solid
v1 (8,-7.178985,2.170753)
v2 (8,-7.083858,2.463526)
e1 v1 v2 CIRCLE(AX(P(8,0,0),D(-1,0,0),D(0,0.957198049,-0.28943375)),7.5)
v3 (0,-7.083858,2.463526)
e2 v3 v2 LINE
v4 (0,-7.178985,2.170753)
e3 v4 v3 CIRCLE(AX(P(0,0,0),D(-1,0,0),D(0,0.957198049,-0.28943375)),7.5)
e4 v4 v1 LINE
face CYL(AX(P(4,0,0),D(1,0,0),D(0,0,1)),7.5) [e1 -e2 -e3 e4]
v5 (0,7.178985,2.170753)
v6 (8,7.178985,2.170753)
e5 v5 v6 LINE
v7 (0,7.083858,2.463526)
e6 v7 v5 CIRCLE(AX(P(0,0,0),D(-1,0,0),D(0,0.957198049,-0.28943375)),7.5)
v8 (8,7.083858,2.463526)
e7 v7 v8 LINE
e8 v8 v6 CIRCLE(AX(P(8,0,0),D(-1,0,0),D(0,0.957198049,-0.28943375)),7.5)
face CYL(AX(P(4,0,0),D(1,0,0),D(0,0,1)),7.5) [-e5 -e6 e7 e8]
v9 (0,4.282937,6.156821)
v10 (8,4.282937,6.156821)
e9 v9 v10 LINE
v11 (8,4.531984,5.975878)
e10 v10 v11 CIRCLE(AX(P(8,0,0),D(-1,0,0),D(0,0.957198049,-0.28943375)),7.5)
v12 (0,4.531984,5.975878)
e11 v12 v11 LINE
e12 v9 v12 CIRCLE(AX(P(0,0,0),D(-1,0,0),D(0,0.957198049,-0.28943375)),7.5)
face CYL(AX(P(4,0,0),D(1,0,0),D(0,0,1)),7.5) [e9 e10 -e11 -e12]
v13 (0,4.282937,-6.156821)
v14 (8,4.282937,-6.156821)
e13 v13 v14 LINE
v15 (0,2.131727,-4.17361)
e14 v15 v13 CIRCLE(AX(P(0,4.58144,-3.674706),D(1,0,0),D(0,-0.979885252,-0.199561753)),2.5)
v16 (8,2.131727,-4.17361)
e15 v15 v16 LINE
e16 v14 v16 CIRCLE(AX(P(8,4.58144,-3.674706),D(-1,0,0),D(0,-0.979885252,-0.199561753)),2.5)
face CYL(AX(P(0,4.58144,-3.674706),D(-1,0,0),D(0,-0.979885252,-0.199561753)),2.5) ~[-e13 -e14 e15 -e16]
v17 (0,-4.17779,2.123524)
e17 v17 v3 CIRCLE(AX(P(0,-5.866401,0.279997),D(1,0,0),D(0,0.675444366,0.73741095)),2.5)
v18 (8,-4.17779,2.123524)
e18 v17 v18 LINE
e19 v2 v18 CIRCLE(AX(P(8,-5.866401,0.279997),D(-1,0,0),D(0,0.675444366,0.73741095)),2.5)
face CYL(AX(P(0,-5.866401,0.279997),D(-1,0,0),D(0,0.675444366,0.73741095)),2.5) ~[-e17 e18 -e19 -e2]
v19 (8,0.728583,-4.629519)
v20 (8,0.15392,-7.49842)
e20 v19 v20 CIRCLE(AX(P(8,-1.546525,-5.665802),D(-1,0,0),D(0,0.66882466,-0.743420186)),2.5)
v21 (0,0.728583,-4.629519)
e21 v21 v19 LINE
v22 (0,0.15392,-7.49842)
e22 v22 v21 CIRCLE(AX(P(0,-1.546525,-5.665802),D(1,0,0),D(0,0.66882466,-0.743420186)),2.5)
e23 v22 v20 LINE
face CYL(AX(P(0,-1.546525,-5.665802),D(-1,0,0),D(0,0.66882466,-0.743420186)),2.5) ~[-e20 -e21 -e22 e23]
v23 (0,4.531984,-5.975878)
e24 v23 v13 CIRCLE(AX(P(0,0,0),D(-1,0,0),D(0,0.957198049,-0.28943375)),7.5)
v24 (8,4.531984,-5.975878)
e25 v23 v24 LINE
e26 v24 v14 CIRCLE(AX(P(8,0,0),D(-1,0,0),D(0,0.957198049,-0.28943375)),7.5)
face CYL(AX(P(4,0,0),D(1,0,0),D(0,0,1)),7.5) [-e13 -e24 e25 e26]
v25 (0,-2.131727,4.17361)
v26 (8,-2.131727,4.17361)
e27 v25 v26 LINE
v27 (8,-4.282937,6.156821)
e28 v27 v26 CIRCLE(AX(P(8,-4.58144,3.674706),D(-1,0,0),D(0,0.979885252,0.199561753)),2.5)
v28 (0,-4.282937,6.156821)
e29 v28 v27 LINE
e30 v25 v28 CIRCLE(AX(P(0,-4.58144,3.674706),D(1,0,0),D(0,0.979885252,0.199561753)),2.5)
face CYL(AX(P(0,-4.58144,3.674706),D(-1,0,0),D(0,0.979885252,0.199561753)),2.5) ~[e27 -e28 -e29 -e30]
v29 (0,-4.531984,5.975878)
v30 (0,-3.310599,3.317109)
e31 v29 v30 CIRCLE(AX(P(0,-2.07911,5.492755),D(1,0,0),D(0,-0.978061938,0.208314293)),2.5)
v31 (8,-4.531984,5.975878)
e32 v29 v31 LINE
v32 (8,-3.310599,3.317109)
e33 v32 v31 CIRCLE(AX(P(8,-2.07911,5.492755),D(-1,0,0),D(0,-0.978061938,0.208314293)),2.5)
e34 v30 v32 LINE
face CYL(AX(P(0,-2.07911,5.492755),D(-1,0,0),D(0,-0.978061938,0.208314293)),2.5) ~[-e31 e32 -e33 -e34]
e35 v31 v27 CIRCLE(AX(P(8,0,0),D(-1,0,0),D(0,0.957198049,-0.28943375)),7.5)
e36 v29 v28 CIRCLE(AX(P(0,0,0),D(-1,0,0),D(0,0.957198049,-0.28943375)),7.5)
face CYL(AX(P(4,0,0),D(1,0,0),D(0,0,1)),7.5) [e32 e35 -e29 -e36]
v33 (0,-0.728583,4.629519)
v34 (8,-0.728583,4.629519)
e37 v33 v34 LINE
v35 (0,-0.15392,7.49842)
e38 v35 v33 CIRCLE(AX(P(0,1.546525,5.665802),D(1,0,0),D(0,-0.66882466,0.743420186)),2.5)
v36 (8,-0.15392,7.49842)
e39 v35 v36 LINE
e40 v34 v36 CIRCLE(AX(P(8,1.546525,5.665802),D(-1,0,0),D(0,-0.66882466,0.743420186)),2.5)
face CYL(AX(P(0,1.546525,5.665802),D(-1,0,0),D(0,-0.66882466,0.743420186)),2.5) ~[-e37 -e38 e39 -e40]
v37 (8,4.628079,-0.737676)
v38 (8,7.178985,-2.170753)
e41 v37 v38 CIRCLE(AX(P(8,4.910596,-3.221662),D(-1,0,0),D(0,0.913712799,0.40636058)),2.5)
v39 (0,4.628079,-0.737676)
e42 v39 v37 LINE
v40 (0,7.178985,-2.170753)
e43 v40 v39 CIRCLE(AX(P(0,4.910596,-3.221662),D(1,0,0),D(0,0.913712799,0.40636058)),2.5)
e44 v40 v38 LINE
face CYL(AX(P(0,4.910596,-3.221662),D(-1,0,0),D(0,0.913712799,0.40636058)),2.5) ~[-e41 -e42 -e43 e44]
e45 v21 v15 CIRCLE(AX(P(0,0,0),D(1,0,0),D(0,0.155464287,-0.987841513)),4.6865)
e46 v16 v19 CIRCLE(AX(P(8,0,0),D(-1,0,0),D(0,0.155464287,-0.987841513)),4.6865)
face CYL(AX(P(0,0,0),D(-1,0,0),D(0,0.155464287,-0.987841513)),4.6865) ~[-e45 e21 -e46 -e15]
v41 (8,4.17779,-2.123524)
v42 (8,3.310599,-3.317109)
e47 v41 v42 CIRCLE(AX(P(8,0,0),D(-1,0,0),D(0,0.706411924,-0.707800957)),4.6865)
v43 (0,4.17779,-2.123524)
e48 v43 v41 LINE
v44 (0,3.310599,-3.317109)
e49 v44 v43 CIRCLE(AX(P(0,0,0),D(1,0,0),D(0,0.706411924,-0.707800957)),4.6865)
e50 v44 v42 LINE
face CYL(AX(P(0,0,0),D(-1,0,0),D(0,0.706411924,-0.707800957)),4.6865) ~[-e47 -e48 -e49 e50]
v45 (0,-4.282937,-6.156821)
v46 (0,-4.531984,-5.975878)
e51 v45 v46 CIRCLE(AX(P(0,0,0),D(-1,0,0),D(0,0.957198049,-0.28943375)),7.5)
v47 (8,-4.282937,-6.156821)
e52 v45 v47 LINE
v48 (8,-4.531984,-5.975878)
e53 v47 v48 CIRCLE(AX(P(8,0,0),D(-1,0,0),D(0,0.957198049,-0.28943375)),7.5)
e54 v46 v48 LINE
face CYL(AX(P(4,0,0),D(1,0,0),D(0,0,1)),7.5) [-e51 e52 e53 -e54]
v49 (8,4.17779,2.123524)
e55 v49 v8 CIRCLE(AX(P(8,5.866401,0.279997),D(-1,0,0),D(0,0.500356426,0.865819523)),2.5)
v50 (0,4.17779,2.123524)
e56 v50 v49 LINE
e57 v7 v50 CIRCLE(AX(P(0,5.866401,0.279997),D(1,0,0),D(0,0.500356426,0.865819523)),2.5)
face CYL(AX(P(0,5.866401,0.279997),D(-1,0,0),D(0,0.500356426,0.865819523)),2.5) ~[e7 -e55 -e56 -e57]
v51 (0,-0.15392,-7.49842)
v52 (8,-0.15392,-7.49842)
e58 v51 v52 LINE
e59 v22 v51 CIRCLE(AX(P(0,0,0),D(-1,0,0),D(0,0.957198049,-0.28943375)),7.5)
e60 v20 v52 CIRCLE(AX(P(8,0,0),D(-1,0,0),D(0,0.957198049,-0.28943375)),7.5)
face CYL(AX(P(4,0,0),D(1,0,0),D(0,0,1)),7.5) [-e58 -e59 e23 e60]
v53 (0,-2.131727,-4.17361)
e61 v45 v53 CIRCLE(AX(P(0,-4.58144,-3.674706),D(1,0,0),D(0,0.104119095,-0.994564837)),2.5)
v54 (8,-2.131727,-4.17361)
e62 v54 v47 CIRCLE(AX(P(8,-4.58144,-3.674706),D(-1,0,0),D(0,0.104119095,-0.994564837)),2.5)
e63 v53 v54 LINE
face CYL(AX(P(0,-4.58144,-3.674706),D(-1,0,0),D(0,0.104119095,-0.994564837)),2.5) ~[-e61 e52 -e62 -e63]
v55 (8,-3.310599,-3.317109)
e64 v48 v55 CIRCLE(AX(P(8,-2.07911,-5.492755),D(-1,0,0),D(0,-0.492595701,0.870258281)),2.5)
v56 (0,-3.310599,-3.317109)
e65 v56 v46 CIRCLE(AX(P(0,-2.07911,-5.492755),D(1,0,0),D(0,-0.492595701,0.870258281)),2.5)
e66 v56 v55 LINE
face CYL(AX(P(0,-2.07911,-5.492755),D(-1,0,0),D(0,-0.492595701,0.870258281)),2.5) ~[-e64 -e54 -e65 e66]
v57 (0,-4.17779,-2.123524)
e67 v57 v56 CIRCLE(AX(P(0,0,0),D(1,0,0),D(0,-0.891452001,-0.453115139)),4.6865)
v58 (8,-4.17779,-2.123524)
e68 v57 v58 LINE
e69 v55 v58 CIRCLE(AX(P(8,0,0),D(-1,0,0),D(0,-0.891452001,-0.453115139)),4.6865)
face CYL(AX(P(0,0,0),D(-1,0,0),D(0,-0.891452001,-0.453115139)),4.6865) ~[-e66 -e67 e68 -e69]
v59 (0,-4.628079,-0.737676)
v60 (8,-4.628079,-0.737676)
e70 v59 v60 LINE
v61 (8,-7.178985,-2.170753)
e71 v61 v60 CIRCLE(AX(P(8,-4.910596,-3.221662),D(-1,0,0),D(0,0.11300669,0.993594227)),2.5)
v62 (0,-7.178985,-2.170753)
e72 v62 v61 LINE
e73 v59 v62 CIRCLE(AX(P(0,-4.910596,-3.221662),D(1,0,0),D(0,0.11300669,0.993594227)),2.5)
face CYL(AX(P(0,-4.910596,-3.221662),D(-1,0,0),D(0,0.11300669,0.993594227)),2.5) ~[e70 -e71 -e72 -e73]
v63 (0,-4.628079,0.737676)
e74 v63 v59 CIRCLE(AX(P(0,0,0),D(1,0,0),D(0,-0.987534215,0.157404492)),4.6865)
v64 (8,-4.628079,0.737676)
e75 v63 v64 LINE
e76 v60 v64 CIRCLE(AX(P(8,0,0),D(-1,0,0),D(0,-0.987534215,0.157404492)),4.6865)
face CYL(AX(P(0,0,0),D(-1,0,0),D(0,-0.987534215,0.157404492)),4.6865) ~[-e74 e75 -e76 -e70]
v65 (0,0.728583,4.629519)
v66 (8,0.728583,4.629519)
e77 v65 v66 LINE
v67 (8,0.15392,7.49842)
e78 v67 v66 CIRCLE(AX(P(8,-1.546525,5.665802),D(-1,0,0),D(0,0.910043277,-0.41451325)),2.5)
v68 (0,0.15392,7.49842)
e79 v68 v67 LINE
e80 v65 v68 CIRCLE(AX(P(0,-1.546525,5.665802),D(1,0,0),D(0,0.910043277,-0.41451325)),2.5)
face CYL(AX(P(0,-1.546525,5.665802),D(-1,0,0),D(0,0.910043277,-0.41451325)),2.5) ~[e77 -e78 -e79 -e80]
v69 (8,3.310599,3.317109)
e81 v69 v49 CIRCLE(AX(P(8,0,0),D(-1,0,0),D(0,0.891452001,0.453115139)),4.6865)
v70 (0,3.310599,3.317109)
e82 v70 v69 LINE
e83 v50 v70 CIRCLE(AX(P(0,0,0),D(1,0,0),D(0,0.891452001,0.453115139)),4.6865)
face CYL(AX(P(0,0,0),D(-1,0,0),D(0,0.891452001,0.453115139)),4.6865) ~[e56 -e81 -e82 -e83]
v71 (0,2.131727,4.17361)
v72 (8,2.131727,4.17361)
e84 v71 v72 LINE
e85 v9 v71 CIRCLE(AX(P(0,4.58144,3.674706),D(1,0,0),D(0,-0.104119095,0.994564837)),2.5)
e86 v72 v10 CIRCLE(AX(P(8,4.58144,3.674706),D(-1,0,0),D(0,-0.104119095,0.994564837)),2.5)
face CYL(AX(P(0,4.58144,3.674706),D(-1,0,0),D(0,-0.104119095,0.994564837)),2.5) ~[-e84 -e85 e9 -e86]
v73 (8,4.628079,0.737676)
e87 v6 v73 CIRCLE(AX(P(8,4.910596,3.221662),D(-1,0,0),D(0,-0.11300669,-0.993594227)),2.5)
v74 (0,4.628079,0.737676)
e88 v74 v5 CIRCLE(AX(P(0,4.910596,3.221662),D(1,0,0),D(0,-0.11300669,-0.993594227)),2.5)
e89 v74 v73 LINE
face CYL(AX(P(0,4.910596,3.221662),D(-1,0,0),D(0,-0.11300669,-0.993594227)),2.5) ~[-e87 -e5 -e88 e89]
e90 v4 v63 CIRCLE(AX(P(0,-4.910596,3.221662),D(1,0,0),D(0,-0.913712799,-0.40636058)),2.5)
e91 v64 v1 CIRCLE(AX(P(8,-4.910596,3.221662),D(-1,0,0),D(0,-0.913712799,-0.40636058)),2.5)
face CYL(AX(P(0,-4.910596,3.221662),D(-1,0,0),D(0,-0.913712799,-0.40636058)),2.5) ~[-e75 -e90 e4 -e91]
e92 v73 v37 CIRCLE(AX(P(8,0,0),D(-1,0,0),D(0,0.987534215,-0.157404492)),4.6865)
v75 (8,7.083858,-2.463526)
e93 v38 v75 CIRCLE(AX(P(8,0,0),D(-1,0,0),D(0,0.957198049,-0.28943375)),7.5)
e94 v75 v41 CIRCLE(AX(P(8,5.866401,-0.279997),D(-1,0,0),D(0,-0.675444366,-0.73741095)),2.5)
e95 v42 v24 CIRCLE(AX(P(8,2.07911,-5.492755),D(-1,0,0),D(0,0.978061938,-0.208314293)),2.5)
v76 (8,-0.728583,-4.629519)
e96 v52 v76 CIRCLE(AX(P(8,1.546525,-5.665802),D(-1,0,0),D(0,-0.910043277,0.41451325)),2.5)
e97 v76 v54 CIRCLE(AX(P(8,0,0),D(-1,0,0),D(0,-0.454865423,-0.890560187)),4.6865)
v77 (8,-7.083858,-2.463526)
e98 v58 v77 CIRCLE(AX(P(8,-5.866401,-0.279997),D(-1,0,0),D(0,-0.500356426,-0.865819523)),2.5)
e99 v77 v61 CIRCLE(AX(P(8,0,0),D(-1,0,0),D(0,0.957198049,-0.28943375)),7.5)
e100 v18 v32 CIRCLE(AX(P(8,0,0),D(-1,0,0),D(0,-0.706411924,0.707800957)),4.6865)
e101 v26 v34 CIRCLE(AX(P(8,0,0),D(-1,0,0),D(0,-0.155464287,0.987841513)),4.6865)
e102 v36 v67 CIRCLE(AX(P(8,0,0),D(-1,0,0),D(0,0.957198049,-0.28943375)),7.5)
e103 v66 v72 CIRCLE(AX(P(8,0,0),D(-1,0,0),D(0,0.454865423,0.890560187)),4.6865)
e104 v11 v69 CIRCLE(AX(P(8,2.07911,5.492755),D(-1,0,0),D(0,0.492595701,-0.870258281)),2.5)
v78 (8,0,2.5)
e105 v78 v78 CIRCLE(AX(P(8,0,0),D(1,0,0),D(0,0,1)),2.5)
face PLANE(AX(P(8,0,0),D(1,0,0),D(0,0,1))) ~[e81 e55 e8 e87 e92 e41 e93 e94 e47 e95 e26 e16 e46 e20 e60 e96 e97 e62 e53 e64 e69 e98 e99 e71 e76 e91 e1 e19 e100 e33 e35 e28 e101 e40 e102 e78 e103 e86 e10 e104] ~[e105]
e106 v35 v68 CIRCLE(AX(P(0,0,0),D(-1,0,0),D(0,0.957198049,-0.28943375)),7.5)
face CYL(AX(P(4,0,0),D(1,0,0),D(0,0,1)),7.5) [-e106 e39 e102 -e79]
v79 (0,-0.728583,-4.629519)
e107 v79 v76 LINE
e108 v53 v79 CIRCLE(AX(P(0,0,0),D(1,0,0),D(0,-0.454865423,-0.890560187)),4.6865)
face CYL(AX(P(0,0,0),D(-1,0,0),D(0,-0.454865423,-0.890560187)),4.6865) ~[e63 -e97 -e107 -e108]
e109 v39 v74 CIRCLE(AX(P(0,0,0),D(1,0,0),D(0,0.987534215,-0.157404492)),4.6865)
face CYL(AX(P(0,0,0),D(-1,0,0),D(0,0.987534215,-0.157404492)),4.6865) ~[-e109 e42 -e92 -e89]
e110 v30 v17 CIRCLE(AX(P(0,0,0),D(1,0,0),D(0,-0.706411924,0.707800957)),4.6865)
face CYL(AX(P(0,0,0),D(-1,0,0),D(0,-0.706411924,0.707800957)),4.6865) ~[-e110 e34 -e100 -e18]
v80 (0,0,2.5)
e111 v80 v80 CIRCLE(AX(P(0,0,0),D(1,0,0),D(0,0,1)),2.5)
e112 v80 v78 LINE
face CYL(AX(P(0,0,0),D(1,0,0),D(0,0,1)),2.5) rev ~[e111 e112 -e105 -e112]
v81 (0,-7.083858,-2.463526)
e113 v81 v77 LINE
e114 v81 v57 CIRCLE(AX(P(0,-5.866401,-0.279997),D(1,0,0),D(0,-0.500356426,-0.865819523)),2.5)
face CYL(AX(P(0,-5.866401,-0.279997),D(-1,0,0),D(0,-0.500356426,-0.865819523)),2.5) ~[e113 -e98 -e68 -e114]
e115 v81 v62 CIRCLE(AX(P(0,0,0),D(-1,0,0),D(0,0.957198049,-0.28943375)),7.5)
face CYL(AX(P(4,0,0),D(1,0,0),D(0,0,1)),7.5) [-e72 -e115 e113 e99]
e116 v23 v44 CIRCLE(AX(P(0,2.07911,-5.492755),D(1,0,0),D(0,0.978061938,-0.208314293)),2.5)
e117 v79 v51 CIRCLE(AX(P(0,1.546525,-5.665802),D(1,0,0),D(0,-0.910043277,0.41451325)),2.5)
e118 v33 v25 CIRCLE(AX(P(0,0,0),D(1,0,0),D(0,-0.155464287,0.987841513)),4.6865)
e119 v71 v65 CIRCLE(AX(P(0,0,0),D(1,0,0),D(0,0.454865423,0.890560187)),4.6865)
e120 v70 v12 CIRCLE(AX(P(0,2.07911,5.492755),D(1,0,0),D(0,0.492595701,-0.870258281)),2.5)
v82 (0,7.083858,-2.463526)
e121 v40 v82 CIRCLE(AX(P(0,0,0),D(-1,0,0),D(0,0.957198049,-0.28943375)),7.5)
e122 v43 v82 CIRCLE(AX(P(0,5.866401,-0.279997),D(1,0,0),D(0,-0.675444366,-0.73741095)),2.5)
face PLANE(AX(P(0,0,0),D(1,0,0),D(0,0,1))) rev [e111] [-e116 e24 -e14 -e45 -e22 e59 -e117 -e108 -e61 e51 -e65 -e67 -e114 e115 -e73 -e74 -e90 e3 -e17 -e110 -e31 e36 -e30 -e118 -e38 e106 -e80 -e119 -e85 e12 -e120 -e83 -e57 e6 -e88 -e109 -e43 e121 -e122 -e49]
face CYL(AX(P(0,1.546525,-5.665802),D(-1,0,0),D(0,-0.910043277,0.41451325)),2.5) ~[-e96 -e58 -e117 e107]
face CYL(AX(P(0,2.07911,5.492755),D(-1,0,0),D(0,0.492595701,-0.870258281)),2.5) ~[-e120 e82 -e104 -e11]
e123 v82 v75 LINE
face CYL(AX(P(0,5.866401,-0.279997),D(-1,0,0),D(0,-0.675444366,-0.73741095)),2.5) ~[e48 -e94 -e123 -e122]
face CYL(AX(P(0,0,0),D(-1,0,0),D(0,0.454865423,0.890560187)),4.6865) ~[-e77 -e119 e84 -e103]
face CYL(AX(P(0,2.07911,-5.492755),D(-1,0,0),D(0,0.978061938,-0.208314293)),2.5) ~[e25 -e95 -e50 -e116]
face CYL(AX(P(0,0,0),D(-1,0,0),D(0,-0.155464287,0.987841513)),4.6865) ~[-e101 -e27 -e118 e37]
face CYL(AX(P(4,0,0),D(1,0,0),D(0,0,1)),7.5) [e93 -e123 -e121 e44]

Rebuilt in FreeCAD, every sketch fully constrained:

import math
import FreeCAD as App
import Part
import Sketcher
from FreeCAD import Vector


def add_polygon(sketch, points):
    """Adds a closed chain of lines whose ends are joined by coincident constraints."""
    first, n = sketch.GeometryCount, len(points)
    for a, b in zip(points, points[1:] + points[:1]):
        sketch.addGeometry(Part.LineSegment(App.Vector(*a, 0), App.Vector(*b, 0)), False)
    for i in range(n):
        sketch.addConstraint(Sketcher.Constraint("Coincident", first + i, 2, first + (i + 1) % n, 1))

doc = App.newDocument("Part")
body = doc.addObject("PartDesign::Body", "Body")

# Sketch on XZ plane
sketch1 = body.newObject("Sketcher::SketchObject", "Sketch")
sketch1.AttachmentSupport = (doc.getObject("XZ_Plane"), [""])
sketch1.MapMode = "FlatFace"
add_polygon(sketch1, [(0, -8), (0, 0), (8, 0), (8, -8)])  # lines 0-3
sketch1.addConstraint([
    Sketcher.Constraint("Vertical", 0),
    Sketcher.Constraint("Horizontal", 1),
    Sketcher.Constraint("Vertical", 2),
    Sketcher.Constraint("Horizontal", 3),
    Sketcher.Constraint("Coincident", 0, 2, -1, 1),
    Sketcher.Constraint("DistanceX", 1, 1, 1, 2, 8.0),
    Sketcher.Constraint("DistanceY", 0, 1, 0, 2, 7.5),
])
revolution = body.newObject("PartDesign::Revolution", "Revolution")
revolution.Profile = sketch1
revolution.ReferenceAxis = (sketch1, ["H_Axis"])
revolution.Angle = 360

# Sketch on YZ plane
sketch2 = body.newObject("Sketcher::SketchObject", "Sketch001")
sketch2.AttachmentSupport = (doc.getObject("YZ_Plane"), [""])
sketch2.MapMode = "FlatFace"
sketch2.addGeometry([
    Part.ArcOfCircle(Part.Circle(Vector(0, 0, 0), Vector(0, 0, 1), 4.7), math.radians(-9.06), math.radians(9.06)),
    Part.ArcOfCircle(Part.Circle(Vector(4.9, -3.2, 0), Vector(0, 0, 1), 2.5), math.radians(24), math.radians(96)),
    Part.ArcOfCircle(Part.Circle(Vector(0, 0, 0), Vector(0, 0, 1), 7.5), math.radians(-17), math.radians(17)),
    Part.ArcOfCircle(Part.Circle(Vector(4.9, 3.2, 0), Vector(0, 0, 1), 2.5), math.radians(-96), math.radians(-24)),
], False)
sketch2.addConstraint([
    Sketcher.Constraint("Coincident", 0, 1, 1, 2),
    Sketcher.Constraint("Coincident", 1, 1, 2, 1),
    Sketcher.Constraint("Coincident", 2, 2, 3, 2),
    Sketcher.Constraint("Coincident", 3, 1, 0, 2),
    Sketcher.Constraint("Coincident", 0, 3, -1, 1),
    Sketcher.Constraint("Coincident", 2, 3, -1, 1),
    Sketcher.Constraint("Equal", 1, 3),
    Sketcher.Constraint("Symmetric", 1, 3, 3, 3, -1),
    Sketcher.Constraint("Radius", 1, 2.5),
    Sketcher.Constraint("Radius", 0, 4.6865),
    Sketcher.Constraint("Radius", 2, 7.5254),
    Sketcher.Constraint("DistanceY", 1, 3, 1, 1, 1.015901),
    Sketcher.Constraint("DistanceX", 0, 1, 1, 1, 2.566799),
])
pocket1 = body.newObject("PartDesign::Pocket", "Pocket")
pocket1.Profile = sketch2
pocket1.Type = "ThroughAll"
pocket1.Reversed = True
doc.recompute()

polarpattern = body.newObject("PartDesign::PolarPattern", "PolarPattern")
polarpattern.Originals = [pocket1]
polarpattern.Axis = (doc.getObject("X_Axis"), [""])
polarpattern.Angle = 360
polarpattern.Occurrences = 10
body.Tip = polarpattern

# Sketch on YZ plane
sketch3 = body.newObject("Sketcher::SketchObject", "Sketch002")
sketch3.AttachmentSupport = (doc.getObject("YZ_Plane"), [""])
sketch3.MapMode = "FlatFace"
sketch3.addGeometry(Part.Circle(Vector(0, 0, 0), Vector(0, 0, 1), 2.5), False)
sketch3.addConstraint([
    Sketcher.Constraint("Coincident", 0, 3, -1, 1),
    Sketcher.Constraint("Diameter", 0, 5.0),
])
pocket2 = body.newObject("PartDesign::Pocket", "Pocket001")
pocket2.Profile = sketch3
pocket2.Length = 100.000102
pocket2.Midplane = True

doc.recompute()
